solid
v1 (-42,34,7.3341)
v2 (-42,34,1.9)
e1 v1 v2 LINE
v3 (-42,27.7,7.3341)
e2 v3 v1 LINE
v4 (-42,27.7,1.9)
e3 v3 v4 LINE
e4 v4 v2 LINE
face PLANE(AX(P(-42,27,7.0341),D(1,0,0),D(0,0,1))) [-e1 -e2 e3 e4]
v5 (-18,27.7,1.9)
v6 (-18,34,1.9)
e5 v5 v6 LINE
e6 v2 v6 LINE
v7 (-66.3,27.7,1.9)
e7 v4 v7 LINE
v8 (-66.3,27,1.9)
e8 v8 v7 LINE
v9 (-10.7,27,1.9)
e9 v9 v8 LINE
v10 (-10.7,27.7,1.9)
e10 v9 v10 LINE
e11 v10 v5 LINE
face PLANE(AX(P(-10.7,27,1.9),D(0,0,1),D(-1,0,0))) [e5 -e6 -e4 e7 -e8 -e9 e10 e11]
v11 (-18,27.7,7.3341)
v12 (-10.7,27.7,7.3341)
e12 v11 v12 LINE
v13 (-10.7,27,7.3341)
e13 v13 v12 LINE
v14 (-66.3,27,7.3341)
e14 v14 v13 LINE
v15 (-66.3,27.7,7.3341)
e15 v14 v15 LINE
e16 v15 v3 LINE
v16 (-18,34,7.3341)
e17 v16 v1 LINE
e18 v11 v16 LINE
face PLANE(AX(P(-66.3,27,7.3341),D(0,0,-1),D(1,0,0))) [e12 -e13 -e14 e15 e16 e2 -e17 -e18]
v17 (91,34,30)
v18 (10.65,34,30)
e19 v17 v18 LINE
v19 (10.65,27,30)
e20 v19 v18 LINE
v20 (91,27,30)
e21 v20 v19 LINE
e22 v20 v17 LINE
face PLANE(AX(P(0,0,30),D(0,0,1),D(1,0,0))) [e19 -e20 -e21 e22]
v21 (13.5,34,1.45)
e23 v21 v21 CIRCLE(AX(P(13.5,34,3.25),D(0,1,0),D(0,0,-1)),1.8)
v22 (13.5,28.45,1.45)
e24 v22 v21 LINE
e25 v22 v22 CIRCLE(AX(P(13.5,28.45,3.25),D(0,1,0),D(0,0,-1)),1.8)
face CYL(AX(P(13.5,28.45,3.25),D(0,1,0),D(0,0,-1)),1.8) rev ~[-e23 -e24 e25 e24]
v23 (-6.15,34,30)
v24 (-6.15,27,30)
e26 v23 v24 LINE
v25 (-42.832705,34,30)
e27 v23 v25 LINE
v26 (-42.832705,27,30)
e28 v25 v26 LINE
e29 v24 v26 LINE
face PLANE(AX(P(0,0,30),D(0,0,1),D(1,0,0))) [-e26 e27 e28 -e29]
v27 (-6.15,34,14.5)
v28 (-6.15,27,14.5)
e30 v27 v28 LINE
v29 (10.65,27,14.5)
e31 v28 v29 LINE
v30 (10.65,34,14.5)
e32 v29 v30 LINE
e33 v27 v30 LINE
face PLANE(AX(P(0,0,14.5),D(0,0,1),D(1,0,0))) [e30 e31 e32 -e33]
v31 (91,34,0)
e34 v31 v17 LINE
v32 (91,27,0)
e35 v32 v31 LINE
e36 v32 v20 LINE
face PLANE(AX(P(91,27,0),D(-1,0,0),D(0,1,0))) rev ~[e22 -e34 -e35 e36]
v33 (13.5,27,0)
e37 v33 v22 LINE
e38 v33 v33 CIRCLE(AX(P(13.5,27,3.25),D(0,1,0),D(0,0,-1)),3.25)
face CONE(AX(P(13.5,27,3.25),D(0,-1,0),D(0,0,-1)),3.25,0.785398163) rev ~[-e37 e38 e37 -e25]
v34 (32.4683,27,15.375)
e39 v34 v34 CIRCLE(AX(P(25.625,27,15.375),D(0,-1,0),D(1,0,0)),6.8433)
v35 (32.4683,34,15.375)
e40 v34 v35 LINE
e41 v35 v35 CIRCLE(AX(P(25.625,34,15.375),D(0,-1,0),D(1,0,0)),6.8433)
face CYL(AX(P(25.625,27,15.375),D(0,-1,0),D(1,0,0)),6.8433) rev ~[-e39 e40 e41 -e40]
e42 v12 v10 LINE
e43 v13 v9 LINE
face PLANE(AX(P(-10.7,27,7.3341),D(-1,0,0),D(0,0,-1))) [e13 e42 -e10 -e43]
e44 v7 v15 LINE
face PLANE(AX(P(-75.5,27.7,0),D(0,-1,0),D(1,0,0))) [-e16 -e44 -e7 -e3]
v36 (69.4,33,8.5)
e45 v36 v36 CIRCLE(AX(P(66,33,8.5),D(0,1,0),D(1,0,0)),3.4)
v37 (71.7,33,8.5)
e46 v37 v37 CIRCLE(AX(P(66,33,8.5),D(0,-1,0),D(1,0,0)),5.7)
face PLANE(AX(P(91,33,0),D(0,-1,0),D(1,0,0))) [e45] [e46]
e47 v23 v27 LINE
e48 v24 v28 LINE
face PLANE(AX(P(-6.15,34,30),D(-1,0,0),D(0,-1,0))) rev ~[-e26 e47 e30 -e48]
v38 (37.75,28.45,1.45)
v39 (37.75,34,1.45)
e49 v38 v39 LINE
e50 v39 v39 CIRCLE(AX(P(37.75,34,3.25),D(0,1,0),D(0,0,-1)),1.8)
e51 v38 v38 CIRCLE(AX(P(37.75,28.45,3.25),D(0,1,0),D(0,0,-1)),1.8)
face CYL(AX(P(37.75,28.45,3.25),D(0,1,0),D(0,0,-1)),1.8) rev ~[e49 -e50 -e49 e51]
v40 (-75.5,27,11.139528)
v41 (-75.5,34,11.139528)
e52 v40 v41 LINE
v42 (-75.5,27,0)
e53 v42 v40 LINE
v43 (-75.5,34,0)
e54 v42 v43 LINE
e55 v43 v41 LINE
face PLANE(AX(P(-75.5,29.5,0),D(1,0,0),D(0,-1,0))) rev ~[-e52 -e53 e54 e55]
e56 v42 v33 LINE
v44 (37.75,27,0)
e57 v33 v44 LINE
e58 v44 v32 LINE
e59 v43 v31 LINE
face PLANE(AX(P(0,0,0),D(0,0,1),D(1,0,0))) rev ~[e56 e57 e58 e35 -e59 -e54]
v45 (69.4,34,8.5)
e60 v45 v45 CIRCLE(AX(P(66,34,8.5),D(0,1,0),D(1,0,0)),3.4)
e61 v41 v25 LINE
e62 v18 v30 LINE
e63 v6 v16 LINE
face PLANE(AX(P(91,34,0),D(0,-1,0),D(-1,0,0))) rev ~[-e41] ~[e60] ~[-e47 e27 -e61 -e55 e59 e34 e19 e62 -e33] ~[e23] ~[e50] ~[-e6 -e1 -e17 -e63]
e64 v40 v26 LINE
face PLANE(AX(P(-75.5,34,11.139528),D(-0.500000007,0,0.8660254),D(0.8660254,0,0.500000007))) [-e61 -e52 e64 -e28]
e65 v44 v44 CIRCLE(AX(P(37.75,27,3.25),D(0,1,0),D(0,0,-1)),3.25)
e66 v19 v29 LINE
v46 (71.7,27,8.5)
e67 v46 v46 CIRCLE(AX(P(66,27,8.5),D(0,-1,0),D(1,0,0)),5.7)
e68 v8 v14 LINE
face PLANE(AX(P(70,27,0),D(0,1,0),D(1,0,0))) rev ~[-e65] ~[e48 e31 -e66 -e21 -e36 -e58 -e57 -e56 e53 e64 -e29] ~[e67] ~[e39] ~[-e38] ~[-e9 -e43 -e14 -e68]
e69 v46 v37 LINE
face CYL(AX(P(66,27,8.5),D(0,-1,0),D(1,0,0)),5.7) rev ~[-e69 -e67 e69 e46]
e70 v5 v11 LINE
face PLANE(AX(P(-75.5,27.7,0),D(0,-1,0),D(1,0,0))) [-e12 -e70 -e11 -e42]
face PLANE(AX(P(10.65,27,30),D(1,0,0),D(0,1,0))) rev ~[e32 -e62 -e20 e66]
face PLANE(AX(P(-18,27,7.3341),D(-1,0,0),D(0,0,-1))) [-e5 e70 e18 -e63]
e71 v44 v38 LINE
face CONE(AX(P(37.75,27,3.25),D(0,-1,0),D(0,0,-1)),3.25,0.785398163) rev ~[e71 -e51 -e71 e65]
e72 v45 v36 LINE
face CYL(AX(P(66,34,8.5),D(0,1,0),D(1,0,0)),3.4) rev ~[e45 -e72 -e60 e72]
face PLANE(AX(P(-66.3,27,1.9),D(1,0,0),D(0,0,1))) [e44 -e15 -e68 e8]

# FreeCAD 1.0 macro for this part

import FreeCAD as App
import Part
import Sketcher

V = App.Vector
Q = App.Units.Quantity


def add_polygon(sketch, points):
    """Adds a closed chain of lines whose ends are joined by coincident constraints."""
    first, n = sketch.GeometryCount, len(points)
    for a, b in zip(points, points[1:] + points[:1]):
        sketch.addGeometry(Part.LineSegment(App.Vector(*a, 0), App.Vector(*b, 0)), False)
    for i in range(n):
        sketch.addConstraint(Sketcher.Constraint("Coincident", first + i, 2, first + (i + 1) % n, 1))

doc = App.newDocument("Part")
body = doc.addObject("PartDesign::Body", "Body")

# Sketch on XY plane
sketch1 = body.newObject("Sketcher::SketchObject", "Sketch")
sketch1.AttachmentSupport = (doc.getObject("XY_Plane"), [""])
sketch1.MapMode = "FlatFace"
add_polygon(sketch1, [(-76, 27), (91, 27), (91, 34), (-76, 34)])  # lines 0-3
sketch1.addConstraint([
    Sketcher.Constraint("Horizontal", 0),
    Sketcher.Constraint("Vertical", 1),
    Sketcher.Constraint("Horizontal", 2),
    Sketcher.Constraint("Vertical", 3),
    Sketcher.Constraint("DistanceY", 1, 1, 1, 2, Q("7 mm")),
    Sketcher.Constraint("DistanceX", 0, 1, 0, 2, Q("166.5 mm")),
    Sketcher.Constraint("DistanceX", -1, 1, 0, 2, Q("91 mm")),
    Sketcher.Constraint("DistanceY", -1, 1, 0, 2, Q("27 mm")),
])
pad1 = body.newObject("PartDesign::Pad", "Pad")
pad1.Profile = sketch1
pad1.Length = 30

# Sketch on XZ plane
sketch2 = body.newObject("Sketcher::SketchObject", "Sketch001")
sketch2.AttachmentSupport = (doc.getObject("XZ_Plane"), [""])
sketch2.MapMode = "FlatFace"
sketch2.AttachmentOffset = App.Placement(V(0, 0, -34), App.Rotation())
add_polygon(sketch2, [(-43, 30), (-76, 11), (-76, 30)])  # lines 0-2
sketch2.addConstraint([
    Sketcher.Constraint("Vertical", 1),
    Sketcher.Constraint("Horizontal", 2),
    Sketcher.Constraint("DistanceY", -1, 1, 1, 2, Q("30 mm")),
    Sketcher.Constraint("Angle", 0, Q("-150 deg")),
    Sketcher.Constraint("DistanceX", 0, 2, -1, 1, Q("75.5 mm")),
    Sketcher.Constraint("Distance", 0, Q("37.721 mm")),
])
pocket1 = body.newObject("PartDesign::Pocket", "Pocket")
pocket1.Profile = sketch2
pocket1.Length = 30
pocket1.Reversed = True

# Sketch on XZ plane
sketch3 = body.newObject("Sketcher::SketchObject", "Sketch002")
sketch3.AttachmentSupport = (doc.getObject("XZ_Plane"), [""])
sketch3.MapMode = "FlatFace"
sketch3.AttachmentOffset = App.Placement(V(0, 0, -27), App.Rotation())
add_polygon(sketch3, [(-11, 7), (-66, 7), (-66, 2), (-11, 2)])  # lines 0-3
sketch3.addConstraint([
    Sketcher.Constraint("Horizontal", 0),
    Sketcher.Constraint("Vertical", 1),
    Sketcher.Constraint("Horizontal", 2),
    Sketcher.Constraint("Vertical", 3),
    Sketcher.Constraint("DistanceX", 0, 2, 0, 1, Q("55.6 mm")),
    Sketcher.Constraint("DistanceX", 0, 2, -1, 1, Q("66.3 mm")),
    Sketcher.Constraint("DistanceY", -1, 1, 1, 2, Q("1.9 mm")),
    Sketcher.Constraint("DistanceY", 1, 2, 1, 1, Q("5.434 mm")),
])
pocket2 = body.newObject("PartDesign::Pocket", "Pocket001")
pocket2.Profile = sketch3
pocket2.Length = 0.7

# Sketch on XZ plane
sketch4 = body.newObject("Sketcher::SketchObject", "Sketch003")
sketch4.AttachmentSupport = (doc.getObject("XZ_Plane"), [""])
sketch4.MapMode = "FlatFace"
sketch4.AttachmentOffset = App.Placement(V(0, 0, -27), App.Rotation())
add_polygon(sketch4, [(-42, 7), (-42, 2), (-18, 2), (-18, 7)])  # lines 0-3
sketch4.addConstraint([
    Sketcher.Constraint("Vertical", 0),
    Sketcher.Constraint("Horizontal", 1),
    Sketcher.Constraint("Vertical", 2),
    Sketcher.Constraint("Horizontal", 3),
    Sketcher.Constraint("DistanceX", 1, 1, 1, 2, Q("24 mm")),
    Sketcher.Constraint("DistanceX", 0, 2, -1, 1, Q("42 mm")),
    Sketcher.Constraint("DistanceY", -1, 1, 0, 2, Q("1.9 mm")),
    Sketcher.Constraint("DistanceY", 0, 2, 0, 1, Q("5.434 mm")),
])
pocket3 = body.newObject("PartDesign::Pocket", "Pocket002")
pocket3.Profile = sketch4
pocket3.Length = 7

# Sketch on XY plane
sketch5 = body.newObject("Sketcher::SketchObject", "Sketch004")
sketch5.AttachmentSupport = (doc.getObject("XY_Plane"), [""])
sketch5.MapMode = "FlatFace"
sketch5.AttachmentOffset = App.Placement(V(0, 0, 30), App.Rotation())
add_polygon(sketch5, [(11, 27), (11, 34), (-6, 34), (-6, 27)])  # lines 0-3
sketch5.addConstraint([
    Sketcher.Constraint("Vertical", 0),
    Sketcher.Constraint("Horizontal", 1),
    Sketcher.Constraint("Vertical", 2),
    Sketcher.Constraint("Horizontal", 3),
    Sketcher.Constraint("DistanceY", 0, 1, 0, 2, Q("7 mm")),
    Sketcher.Constraint("DistanceX", 1, 2, 1, 1, Q("16.8 mm")),
    Sketcher.Constraint("DistanceY", -1, 1, 0, 2, Q("34 mm")),
    Sketcher.Constraint("DistanceX", -1, 1, 0, 2, Q("10.65 mm")),
])
pocket4 = body.newObject("PartDesign::Pocket", "Pocket003")
pocket4.Profile = sketch5
pocket4.Length = 15.5

# Sketch on XZ plane
sketch6 = body.newObject("Sketcher::SketchObject", "Sketch005")
sketch6.AttachmentSupport = (doc.getObject("XZ_Plane"), [""])
sketch6.MapMode = "FlatFace"
sketch6.AttachmentOffset = App.Placement(V(0, 0, -27), App.Rotation())
sketch6.addGeometry([
    Part.Circle(V(13.5, 3.2, 0), V(0, 0, 1), 1.8),
    Part.Circle(V(37.8, 3.2, 0), V(0, 0, 1), 1.8),
], False)
sketch6.addConstraint([
    Sketcher.Constraint("Equal", 0, 1),
    Sketcher.Constraint("Horizontal", 0, 3, 1, 3),
    Sketcher.Constraint("Diameter", 0, Q("3.6 mm")),
    Sketcher.Constraint("DistanceX", -1, 1, 0, 3, Q("13.5 mm")),
    Sketcher.Constraint("DistanceY", -1, 1, 0, 3, Q("3.25 mm")),
    Sketcher.Constraint("DistanceX", -1, 1, 1, 3, Q("37.75 mm")),
])
doc.recompute()
hole = body.newObject("PartDesign::Hole", "Hole")
hole.Profile = sketch6
hole.ThreadType = "None"
hole.Diameter = 3.6
hole.DepthType = "ThroughAll"
hole.HoleCutType = "Countersink"
hole.HoleCutDiameter = 6.5
hole.HoleCutCountersinkAngle = 90

# Sketch on XZ plane
sketch7 = body.newObject("Sketcher::SketchObject", "Sketch006")
sketch7.AttachmentSupport = (doc.getObject("XZ_Plane"), [""])
sketch7.MapMode = "FlatFace"
sketch7.AttachmentOffset = App.Placement(V(0, 0, -27), App.Rotation())
sketch7.addGeometry(Part.Circle(V(26, 15, 0), V(0, 0, 1), 7), False)
sketch7.addConstraint([
    Sketcher.Constraint("Diameter", 0, Q("13.6866 mm")),
    Sketcher.Constraint("DistanceX", -1, 1, 0, 3, Q("25.625 mm")),
    Sketcher.Constraint("DistanceY", -1, 1, 0, 3, Q("15.375 mm")),
])
pocket5 = body.newObject("PartDesign::Pocket", "Pocket004")
pocket5.Profile = sketch7
pocket5.Type = "UpToFirst"

# Sketch on XZ plane
sketch8 = body.newObject("Sketcher::SketchObject", "Sketch007")
sketch8.AttachmentSupport = (doc.getObject("XZ_Plane"), [""])
sketch8.MapMode = "FlatFace"
sketch8.AttachmentOffset = App.Placement(V(0, 0, -27), App.Rotation())
sketch8.addGeometry(Part.Circle(V(66, 8, 0), V(0, 0, 1), 6), False)
sketch8.addConstraint([
    Sketcher.Constraint("Diameter", 0, Q("11.4 mm")),
    Sketcher.Constraint("DistanceX", -1, 1, 0, 3, Q("66 mm")),
    Sketcher.Constraint("DistanceY", -1, 1, 0, 3, Q("8.5 mm")),
])
pocket6 = body.newObject("PartDesign::Pocket", "Pocket005")
pocket6.Profile = sketch8
pocket6.Length = 6

# Sketch on XZ plane
sketch9 = body.newObject("Sketcher::SketchObject", "Sketch008")
sketch9.AttachmentSupport = (doc.getObject("XZ_Plane"), [""])
sketch9.MapMode = "FlatFace"
sketch9.AttachmentOffset = App.Placement(V(0, 0, -34), App.Rotation())
sketch9.addGeometry(Part.Circle(V(66, 8.5, 0), V(0, 0, 1), 3.4), False)
sketch9.addConstraint([
    Sketcher.Constraint("Diameter", 0, Q("6.8 mm")),
    Sketcher.Constraint("DistanceX", -1, 1, 0, 3, Q("66 mm")),
    Sketcher.Constraint("DistanceY", -1, 1, 0, 3, Q("8.5 mm")),
])
pocket7 = body.newObject("PartDesign::Pocket", "Pocket006")
pocket7.Profile = sketch9
pocket7.Length = 6
pocket7.Reversed = True

doc.recompute()
